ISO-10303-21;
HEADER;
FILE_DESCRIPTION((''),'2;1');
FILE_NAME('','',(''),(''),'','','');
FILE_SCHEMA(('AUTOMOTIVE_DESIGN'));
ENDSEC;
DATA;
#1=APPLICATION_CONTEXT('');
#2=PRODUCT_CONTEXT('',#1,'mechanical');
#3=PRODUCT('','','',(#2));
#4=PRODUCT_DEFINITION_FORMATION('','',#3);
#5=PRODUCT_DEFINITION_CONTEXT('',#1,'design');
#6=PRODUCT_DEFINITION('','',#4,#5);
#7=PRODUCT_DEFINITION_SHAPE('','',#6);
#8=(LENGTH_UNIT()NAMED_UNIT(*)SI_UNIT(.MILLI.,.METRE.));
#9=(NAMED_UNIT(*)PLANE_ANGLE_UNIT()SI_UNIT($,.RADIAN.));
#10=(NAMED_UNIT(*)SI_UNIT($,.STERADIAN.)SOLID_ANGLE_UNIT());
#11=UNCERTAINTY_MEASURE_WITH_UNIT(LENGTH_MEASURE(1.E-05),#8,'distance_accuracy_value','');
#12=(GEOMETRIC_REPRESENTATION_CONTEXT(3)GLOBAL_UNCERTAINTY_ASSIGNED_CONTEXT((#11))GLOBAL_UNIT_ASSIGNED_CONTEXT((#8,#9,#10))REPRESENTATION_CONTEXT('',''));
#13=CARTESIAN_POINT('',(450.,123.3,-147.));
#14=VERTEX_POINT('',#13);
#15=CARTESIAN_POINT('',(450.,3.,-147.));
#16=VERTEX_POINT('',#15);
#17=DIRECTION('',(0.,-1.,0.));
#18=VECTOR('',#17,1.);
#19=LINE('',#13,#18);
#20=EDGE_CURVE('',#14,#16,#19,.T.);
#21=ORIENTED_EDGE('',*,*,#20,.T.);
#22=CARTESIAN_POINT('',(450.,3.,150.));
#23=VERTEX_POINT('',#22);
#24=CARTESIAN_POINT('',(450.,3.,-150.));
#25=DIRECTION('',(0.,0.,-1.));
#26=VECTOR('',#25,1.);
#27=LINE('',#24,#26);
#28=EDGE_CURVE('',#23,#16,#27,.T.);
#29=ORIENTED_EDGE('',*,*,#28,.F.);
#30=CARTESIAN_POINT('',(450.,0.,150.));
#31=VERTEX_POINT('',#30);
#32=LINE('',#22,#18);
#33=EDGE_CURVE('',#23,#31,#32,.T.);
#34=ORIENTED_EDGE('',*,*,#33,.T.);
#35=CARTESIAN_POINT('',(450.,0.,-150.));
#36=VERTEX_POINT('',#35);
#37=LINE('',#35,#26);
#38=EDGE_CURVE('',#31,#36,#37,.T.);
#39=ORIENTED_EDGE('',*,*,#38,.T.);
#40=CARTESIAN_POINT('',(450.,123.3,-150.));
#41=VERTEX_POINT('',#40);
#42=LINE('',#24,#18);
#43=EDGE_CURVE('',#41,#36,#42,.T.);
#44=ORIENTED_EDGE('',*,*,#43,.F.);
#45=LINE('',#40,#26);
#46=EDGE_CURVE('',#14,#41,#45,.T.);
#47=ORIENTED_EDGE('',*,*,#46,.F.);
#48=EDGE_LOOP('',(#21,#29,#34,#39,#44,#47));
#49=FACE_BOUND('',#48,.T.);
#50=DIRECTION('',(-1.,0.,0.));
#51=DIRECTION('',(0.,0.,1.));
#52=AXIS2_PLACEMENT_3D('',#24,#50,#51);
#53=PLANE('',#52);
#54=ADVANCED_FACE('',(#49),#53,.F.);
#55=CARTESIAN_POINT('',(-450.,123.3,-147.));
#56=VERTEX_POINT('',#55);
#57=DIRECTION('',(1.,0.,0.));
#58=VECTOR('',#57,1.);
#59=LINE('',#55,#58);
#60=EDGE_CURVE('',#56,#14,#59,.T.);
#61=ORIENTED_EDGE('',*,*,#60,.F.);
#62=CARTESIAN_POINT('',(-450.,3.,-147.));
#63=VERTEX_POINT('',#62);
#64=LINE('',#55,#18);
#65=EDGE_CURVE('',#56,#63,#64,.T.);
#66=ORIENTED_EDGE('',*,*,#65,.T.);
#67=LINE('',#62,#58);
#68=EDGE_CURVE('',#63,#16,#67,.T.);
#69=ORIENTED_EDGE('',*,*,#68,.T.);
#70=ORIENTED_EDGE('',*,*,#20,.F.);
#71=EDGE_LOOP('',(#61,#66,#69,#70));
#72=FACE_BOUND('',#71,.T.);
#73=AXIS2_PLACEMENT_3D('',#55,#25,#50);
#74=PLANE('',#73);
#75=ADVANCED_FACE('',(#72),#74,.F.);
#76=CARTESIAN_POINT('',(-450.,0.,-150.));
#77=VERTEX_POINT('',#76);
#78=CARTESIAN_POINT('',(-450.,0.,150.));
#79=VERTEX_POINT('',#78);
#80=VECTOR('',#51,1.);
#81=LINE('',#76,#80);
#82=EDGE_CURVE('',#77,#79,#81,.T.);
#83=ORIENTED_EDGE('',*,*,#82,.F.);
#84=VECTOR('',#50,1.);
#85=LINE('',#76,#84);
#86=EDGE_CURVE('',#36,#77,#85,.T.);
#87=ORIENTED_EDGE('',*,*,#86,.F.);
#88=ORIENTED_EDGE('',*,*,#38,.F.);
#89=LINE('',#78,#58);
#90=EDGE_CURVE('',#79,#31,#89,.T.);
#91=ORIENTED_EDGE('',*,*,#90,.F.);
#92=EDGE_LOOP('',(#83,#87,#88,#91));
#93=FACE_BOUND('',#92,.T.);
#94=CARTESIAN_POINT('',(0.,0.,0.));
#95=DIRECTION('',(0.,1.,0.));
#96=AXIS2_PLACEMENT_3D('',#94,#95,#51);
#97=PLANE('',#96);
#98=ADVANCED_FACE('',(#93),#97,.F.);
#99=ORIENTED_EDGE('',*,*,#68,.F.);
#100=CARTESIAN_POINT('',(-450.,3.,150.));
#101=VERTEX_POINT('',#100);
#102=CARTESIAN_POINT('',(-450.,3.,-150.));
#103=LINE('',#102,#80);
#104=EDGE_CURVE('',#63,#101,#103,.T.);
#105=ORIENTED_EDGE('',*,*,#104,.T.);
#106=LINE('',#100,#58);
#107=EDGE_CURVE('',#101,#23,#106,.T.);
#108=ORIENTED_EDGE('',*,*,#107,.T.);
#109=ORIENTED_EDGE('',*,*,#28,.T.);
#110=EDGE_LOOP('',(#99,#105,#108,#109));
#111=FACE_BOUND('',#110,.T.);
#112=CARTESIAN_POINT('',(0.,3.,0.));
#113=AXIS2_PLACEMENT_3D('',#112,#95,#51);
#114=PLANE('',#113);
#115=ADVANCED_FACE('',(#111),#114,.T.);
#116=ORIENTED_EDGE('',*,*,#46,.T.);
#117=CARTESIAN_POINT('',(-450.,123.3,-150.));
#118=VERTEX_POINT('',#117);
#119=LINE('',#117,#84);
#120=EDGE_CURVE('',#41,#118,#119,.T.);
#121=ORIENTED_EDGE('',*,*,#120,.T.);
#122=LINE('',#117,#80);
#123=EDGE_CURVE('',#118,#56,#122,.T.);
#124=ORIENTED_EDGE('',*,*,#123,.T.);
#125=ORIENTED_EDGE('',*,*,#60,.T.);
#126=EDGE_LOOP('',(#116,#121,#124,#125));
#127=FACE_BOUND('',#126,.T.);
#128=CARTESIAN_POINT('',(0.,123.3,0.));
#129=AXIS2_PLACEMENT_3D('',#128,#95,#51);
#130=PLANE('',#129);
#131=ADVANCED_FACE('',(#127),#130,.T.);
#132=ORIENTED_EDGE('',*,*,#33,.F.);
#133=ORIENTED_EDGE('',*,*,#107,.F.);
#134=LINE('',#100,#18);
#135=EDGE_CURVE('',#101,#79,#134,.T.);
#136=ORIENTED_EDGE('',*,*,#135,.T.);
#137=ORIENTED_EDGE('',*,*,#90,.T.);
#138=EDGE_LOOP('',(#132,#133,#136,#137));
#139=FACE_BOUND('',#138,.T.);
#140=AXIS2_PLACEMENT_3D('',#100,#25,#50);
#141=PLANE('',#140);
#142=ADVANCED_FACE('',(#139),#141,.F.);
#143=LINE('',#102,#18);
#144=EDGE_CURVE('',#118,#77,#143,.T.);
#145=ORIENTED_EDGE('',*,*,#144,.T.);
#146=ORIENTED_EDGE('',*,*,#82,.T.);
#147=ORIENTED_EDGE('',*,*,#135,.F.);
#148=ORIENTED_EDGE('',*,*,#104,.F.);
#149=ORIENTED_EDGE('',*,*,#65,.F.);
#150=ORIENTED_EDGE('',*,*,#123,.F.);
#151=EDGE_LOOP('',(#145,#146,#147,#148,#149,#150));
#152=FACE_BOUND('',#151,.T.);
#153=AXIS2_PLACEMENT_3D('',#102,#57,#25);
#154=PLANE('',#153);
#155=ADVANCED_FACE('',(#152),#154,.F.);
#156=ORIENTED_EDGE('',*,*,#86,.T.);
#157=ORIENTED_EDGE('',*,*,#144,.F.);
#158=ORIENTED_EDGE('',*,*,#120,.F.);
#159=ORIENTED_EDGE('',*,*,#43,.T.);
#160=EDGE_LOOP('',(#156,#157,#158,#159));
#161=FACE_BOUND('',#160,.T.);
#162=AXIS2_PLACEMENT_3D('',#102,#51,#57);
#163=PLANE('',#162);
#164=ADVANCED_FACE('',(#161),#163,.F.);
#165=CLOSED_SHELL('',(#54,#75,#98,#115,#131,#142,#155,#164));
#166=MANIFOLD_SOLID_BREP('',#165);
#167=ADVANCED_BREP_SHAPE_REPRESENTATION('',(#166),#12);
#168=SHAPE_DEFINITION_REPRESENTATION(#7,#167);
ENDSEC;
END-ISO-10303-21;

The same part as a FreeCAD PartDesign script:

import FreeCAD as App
import Part
import Sketcher


def add_polygon(sketch, points):
    """Adds a closed chain of lines whose ends are joined by coincident constraints."""
    first, n = sketch.GeometryCount, len(points)
    for a, b in zip(points, points[1:] + points[:1]):
        sketch.addGeometry(Part.LineSegment(App.Vector(*a, 0), App.Vector(*b, 0)), False)
    for i in range(n):
        sketch.addConstraint(Sketcher.Constraint("Coincident", first + i, 2, first + (i + 1) % n, 1))

doc = App.newDocument("Part")
body = doc.addObject("PartDesign::Body", "Body")

# Sketch on XZ plane
sketch1 = doc.addObject("Sketcher::SketchObject", "Sketch")
body.addObject(sketch1)
sketch1.AttachmentSupport = (doc.XZ_Plane, [""])
sketch1.MapMode = "FlatFace"
add_polygon(sketch1, [(-450, -150), (-450, 150), (450, 150), (450, -150)])  # lines 0-3
sketch1.addConstraint(Sketcher.Constraint("Vertical", 0))
sketch1.addConstraint(Sketcher.Constraint("Horizontal", 1))
sketch1.addConstraint(Sketcher.Constraint("Vertical", 2))
sketch1.addConstraint(Sketcher.Constraint("Horizontal", 3))
sketch1.addConstraint(Sketcher.Constraint("Symmetric", 0, 2, 2, 2, -1, 1))
sketch1.addConstraint(Sketcher.Constraint("DistanceX", 1, 1, 1, 2, 900.0))
sketch1.addConstraint(Sketcher.Constraint("DistanceY", 0, 1, 0, 2, 300.0))
pad1 = doc.addObject("PartDesign::Pad", "Pad")
body.addObject(pad1)
pad1.Profile = sketch1
pad1.Length = 3
pad1.Reversed = True

# Sketch on XZ plane
sketch2 = doc.addObject("Sketcher::SketchObject", "Sketch001")
body.addObject(sketch2)
sketch2.AttachmentSupport = (doc.XZ_Plane, [""])
sketch2.MapMode = "FlatFace"
sketch2.AttachmentOffset = App.Placement(App.Vector(0, 0, -3), App.Rotation())
add_polygon(sketch2, [(-450, -150), (-450, -147), (450, -147), (450, -150)])  # lines 0-3
sketch2.addConstraint(Sketcher.Constraint("Vertical", 0))
sketch2.addConstraint(Sketcher.Constraint("Horizontal", 1))
sketch2.addConstraint(Sketcher.Constraint("Vertical", 2))
sketch2.addConstraint(Sketcher.Constraint("Horizontal", 3))
sketch2.addConstraint(Sketcher.Constraint("DistanceX", 1, 1, 1, 2, 900.0))
sketch2.addConstraint(Sketcher.Constraint("DistanceY", 0, 1, 0, 2, 3.0))
sketch2.addConstraint(Sketcher.Constraint("DistanceX", 0, 2, -1, 1, 450.0))
sketch2.addConstraint(Sketcher.Constraint("DistanceY", 0, 2, -1, 1, 147.0))
pad2 = doc.addObject("PartDesign::Pad", "Pad001")
body.addObject(pad2)
pad2.Profile = sketch2
pad2.Length = 120.3
pad2.Reversed = True

doc.recompute()
